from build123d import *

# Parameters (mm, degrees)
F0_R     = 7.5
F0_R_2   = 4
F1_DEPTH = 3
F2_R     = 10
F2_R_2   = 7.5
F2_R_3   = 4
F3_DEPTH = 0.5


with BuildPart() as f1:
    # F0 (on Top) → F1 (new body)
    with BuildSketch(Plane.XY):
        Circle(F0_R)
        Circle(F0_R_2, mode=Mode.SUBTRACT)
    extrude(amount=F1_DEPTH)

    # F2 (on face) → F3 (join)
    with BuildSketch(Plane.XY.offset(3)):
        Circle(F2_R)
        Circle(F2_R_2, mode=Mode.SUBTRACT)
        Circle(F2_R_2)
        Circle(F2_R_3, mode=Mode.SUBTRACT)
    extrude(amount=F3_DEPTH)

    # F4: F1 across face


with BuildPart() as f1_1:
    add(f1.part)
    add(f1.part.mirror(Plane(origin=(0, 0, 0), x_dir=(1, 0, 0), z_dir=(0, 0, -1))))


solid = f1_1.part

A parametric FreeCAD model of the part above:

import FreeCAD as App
import Part
import Sketcher

doc = App.newDocument("Part")
body = doc.addObject("PartDesign::Body", "Body")

# Sketch on XY plane
sketch1 = body.newObject("Sketcher::SketchObject", "Sketch")
sketch1.AttachmentSupport = (doc.getObject("XY_Plane"), [""])
sketch1.MapMode = "FlatFace"
sketch1.addGeometry([
    Part.Circle(App.Vector(0, 0, 0), App.Vector(0, 0, 1), 7.5),
    Part.Circle(App.Vector(0, 0, 0), App.Vector(0, 0, 1), 4),
], False)
sketch1.addConstraint([
    Sketcher.Constraint("Coincident", 0, 3, -1, 1),
    Sketcher.Constraint("Coincident", 1, 3, -1, 1),
    Sketcher.Constraint("Diameter", 0, 15.0),
    Sketcher.Constraint("Diameter", 1, 8.0),
])
pad1 = body.newObject("PartDesign::Pad", "Pad")
pad1.Profile = sketch1
pad1.Length = 3

# Sketch on XY plane
sketch2 = body.newObject("Sketcher::SketchObject", "Sketch001")
sketch2.AttachmentSupport = (doc.getObject("XY_Plane"), [""])
sketch2.MapMode = "FlatFace"
sketch2.AttachmentOffset = App.Placement(App.Vector(0, 0, 3), App.Rotation())
sketch2.addGeometry([
    Part.Circle(App.Vector(0, 0, 0), App.Vector(0, 0, 1), 10),
    Part.Circle(App.Vector(0, 0, 0), App.Vector(0, 0, 1), 4),
], False)
sketch2.addConstraint([
    Sketcher.Constraint("Coincident", 0, 3, -1, 1),
    Sketcher.Constraint("Coincident", 1, 3, -1, 1),
    Sketcher.Constraint("Diameter", 0, 20.0),
    Sketcher.Constraint("Diameter", 1, 8.0),
])
pad2 = body.newObject("PartDesign::Pad", "Pad001")
pad2.Profile = sketch2
pad2.Length = 0.5
body2 = doc.addObject("PartDesign::Body", "Body001")
doc.recompute()

body2.BaseFeature = body
doc.recompute()

mirroring = doc.addObject("Part::Mirroring", "Mirroring")
mirroring.Source = body
mirroring.Base = App.Vector(0, 0, 0)
mirroring.Normal = App.Vector(0, 0, -1)
body3 = doc.addObject("PartDesign::Body", "Body002")
body3.BaseFeature = mirroring
boolean = body2.newObject("PartDesign::Boolean", "Boolean")
boolean.Type = "Fuse"
boolean.addObjects([body3])
doc.recompute()
mirroring.Visibility = False

doc.recompute()
